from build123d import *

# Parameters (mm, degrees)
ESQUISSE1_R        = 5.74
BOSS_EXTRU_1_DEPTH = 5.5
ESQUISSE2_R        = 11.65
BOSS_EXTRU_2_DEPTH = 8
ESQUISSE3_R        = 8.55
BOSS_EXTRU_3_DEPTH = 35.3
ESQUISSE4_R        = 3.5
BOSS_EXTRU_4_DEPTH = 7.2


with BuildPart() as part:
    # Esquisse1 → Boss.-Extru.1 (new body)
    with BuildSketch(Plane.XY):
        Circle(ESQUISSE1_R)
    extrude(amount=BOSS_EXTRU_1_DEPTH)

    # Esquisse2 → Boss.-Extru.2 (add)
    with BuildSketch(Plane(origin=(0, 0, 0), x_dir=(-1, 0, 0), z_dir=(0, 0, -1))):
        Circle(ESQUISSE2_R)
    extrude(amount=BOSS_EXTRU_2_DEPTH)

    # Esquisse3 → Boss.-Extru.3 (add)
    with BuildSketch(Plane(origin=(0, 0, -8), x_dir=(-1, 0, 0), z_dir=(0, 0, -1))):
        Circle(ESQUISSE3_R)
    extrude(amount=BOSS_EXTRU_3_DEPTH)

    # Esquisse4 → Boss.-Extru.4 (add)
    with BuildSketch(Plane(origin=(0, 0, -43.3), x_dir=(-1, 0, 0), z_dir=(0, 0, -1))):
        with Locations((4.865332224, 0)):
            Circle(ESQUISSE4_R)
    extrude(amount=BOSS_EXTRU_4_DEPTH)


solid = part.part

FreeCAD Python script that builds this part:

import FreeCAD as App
import Part
import Sketcher
Q = App.Units.Quantity

doc = App.newDocument("Part")
body = doc.addObject("PartDesign::Body", "Body")

# Sketch on XY plane
sketch1 = doc.addObject("Sketcher::SketchObject", "Sketch")
body.addObject(sketch1)
sketch1.AttachmentSupport = (doc.XY_Plane, [""])
sketch1.MapMode = "FlatFace"
sketch1.addGeometry(Part.Circle(App.Vector(0, 0, 0), App.Vector(0, 0, 1), 6), False)
sketch1.addConstraint([
    Sketcher.Constraint("Coincident", 0, 3, -1, 1),
    Sketcher.Constraint("Diameter", 0, Q("11.48 mm")),
])
pad1 = doc.addObject("PartDesign::Pad", "Pad")
body.addObject(pad1)
pad1.Profile = sketch1
pad1.Length = 5.5

# Sketch on XY plane
sketch2 = doc.addObject("Sketcher::SketchObject", "Sketch001")
body.addObject(sketch2)
sketch2.AttachmentSupport = (doc.XY_Plane, [""])
sketch2.MapMode = "FlatFace"
sketch2.addGeometry(Part.Circle(App.Vector(0, 0, 0), App.Vector(0, 0, 1), 12), False)
sketch2.addConstraint([
    Sketcher.Constraint("Coincident", 0, 3, -1, 1),
    Sketcher.Constraint("Diameter", 0, Q("23.3 mm")),
])
pad2 = doc.addObject("PartDesign::Pad", "Pad001")
body.addObject(pad2)
pad2.Profile = sketch2
pad2.Length = 8
pad2.Reversed = True

# Sketch on XY plane
sketch3 = doc.addObject("Sketcher::SketchObject", "Sketch002")
body.addObject(sketch3)
sketch3.AttachmentSupport = (doc.XY_Plane, [""])
sketch3.MapMode = "FlatFace"
sketch3.AttachmentOffset = App.Placement(App.Vector(0, 0, -8), App.Rotation())
sketch3.addGeometry(Part.Circle(App.Vector(0, 0, 0), App.Vector(0, 0, 1), 9), False)
sketch3.addConstraint([
    Sketcher.Constraint("Coincident", 0, 3, -1, 1),
    Sketcher.Constraint("Diameter", 0, Q("17.1 mm")),
])
pad3 = doc.addObject("PartDesign::Pad", "Pad002")
body.addObject(pad3)
pad3.Profile = sketch3
pad3.Length = 35.3
pad3.Reversed = True

# Sketch on XY plane
sketch4 = doc.addObject("Sketcher::SketchObject", "Sketch003")
body.addObject(sketch4)
sketch4.AttachmentSupport = (doc.XY_Plane, [""])
sketch4.MapMode = "FlatFace"
sketch4.AttachmentOffset = App.Placement(App.Vector(0, 0, -43.3), App.Rotation())
sketch4.addGeometry(Part.Circle(App.Vector(-4.9, 0, 0), App.Vector(0, 0, 1), 3.5), False)
sketch4.addConstraint([
    Sketcher.Constraint("PointOnObject", 0, 3, -1),
    Sketcher.Constraint("Diameter", 0, Q("7 mm")),
    Sketcher.Constraint("DistanceX", 0, 3, -1, 1, Q("4.865332 mm")),
])
pad4 = doc.addObject("PartDesign::Pad", "Pad003")
body.addObject(pad4)
pad4.Profile = sketch4
pad4.Length = 7.2
pad4.Reversed = True

doc.recompute()
